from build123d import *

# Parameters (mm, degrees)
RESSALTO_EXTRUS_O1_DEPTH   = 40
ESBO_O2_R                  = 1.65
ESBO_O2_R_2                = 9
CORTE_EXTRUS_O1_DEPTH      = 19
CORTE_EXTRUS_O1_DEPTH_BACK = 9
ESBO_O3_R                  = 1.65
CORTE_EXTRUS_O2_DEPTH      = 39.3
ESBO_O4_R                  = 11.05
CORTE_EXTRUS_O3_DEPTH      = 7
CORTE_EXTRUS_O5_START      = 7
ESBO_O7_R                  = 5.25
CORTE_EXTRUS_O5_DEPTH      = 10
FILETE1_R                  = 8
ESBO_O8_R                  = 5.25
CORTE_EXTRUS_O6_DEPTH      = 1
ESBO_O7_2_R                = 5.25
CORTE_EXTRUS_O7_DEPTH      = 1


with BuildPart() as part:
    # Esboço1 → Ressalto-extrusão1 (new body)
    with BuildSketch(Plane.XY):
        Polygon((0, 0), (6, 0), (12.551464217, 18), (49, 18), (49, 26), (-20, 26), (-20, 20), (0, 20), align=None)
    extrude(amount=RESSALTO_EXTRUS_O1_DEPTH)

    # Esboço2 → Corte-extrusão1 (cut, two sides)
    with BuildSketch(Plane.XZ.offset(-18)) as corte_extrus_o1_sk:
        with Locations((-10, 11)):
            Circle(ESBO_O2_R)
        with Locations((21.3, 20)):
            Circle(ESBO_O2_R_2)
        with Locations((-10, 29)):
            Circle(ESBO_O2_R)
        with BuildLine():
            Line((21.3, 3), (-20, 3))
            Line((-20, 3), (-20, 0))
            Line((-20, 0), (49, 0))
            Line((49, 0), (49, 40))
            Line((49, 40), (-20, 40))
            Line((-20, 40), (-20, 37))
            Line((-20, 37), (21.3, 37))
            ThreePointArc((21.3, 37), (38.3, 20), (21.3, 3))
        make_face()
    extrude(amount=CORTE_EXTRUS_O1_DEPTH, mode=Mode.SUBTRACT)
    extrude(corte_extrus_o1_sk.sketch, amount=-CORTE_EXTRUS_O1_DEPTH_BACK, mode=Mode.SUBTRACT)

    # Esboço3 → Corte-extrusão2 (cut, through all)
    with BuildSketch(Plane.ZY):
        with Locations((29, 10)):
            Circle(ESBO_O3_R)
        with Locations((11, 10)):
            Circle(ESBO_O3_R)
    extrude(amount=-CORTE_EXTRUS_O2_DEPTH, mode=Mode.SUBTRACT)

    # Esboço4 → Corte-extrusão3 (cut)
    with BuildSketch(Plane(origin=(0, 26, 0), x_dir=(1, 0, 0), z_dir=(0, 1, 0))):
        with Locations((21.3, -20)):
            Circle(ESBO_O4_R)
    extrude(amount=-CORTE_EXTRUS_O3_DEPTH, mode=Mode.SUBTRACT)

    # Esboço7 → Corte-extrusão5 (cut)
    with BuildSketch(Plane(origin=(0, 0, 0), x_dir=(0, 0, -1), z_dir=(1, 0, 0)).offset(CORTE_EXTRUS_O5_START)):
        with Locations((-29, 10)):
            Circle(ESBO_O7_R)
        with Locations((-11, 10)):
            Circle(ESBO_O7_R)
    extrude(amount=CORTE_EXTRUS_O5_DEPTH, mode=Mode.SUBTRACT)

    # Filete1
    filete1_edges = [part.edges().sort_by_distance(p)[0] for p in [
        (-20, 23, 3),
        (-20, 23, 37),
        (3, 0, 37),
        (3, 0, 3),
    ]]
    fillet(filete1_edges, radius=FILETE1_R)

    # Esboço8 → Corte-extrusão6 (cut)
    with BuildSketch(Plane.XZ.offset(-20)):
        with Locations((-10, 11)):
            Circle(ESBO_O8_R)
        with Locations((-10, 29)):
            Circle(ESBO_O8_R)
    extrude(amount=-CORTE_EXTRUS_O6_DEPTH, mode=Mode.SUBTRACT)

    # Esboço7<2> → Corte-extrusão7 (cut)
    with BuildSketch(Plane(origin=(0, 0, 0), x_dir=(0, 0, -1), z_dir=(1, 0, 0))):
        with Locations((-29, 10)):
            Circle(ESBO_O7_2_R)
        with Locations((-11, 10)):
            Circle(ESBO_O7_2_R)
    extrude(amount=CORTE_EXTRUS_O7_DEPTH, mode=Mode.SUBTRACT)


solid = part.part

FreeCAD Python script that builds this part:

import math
import FreeCAD as App
import Part
import Sketcher

V = App.Vector
Q = App.Units.Quantity


def edges_at(feature, points):
    """Names of the edges that pass closest to the given points."""
    edges = feature.Shape.Edges
    near = lambda p: min(range(len(edges)), key=lambda i: edges[i].distToShape(Part.Vertex(*p))[0])
    return sorted({f"Edge{near(p) + 1}" for p in points})


def add_polygon(sketch, points):
    """Adds a closed chain of lines whose ends are joined by coincident constraints."""
    first, n = sketch.GeometryCount, len(points)
    for a, b in zip(points, points[1:] + points[:1]):
        sketch.addGeometry(Part.LineSegment(App.Vector(*a, 0), App.Vector(*b, 0)), False)
    for i in range(n):
        sketch.addConstraint(Sketcher.Constraint("Coincident", first + i, 2, first + (i + 1) % n, 1))

doc = App.newDocument("Part")
body = doc.addObject("PartDesign::Body", "Body")

# Sketch on XY plane
sketch1 = body.newObject("Sketcher::SketchObject", "Sketch")
sketch1.AttachmentSupport = (doc.getObject("XY_Plane"), [""])
sketch1.MapMode = "FlatFace"
add_polygon(sketch1, [(0, 0), (6, 0), (12.551464, 18), (49, 18), (49, 26), (-20, 26), (-20, 20), (0, 20)])  # lines 0-7
sketch1.addConstraint([
    Sketcher.Constraint("Horizontal", 0),
    Sketcher.Constraint("Horizontal", 2),
    Sketcher.Constraint("Vertical", 3),
    Sketcher.Constraint("Horizontal", 4),
    Sketcher.Constraint("Vertical", 5),
    Sketcher.Constraint("Horizontal", 6),
    Sketcher.Constraint("Vertical", 7),
    Sketcher.Constraint("Coincident", 7, 2, -1, 1),
    Sketcher.Constraint("Equal", 0, 5),
    Sketcher.Constraint("Equal", 6, 7),
    Sketcher.Constraint("DistanceX", 0, 1, 0, 2, Q("6 mm")),
    Sketcher.Constraint("DistanceX", 4, 2, 4, 1, Q("69 mm")),
    Sketcher.Constraint("DistanceX", 6, 1, 6, 2, Q("20 mm")),
    Sketcher.Constraint("DistanceY", 3, 1, 3, 2, Q("8 mm")),
    Sketcher.Constraint("Angle", 1, Q("70 deg")),
])
pad1 = body.newObject("PartDesign::Pad", "Pad")
pad1.Profile = sketch1
pad1.Length = 40

# Sketch on XZ plane
sketch2 = body.newObject("Sketcher::SketchObject", "Sketch001")
sketch2.AttachmentSupport = (doc.getObject("XZ_Plane"), [""])
sketch2.MapMode = "FlatFace"
sketch2.AttachmentOffset = App.Placement(V(0, 0, -18), App.Rotation())
sketch2.addGeometry([
    Part.Circle(V(-10, 11, 0), V(0, 0, 1), 1.65),  # 0
    Part.Circle(V(21.3, 20, 0), V(0, 0, 1), 9),  # 1
    Part.Circle(V(-10, 29, 0), V(0, 0, 1), 1.65),  # 2
    Part.LineSegment(V(21.3, 3, 0), V(-20, 3, 0)),  # 3
    Part.LineSegment(V(-20, 3, 0), V(-20, 0, 0)),  # 4
    Part.LineSegment(V(-20, 0, 0), V(49, 0, 0)),  # 5
    Part.LineSegment(V(49, 0, 0), V(49, 40, 0)),  # 6
    Part.LineSegment(V(49, 40, 0), V(-20, 40, 0)),  # 7
    Part.LineSegment(V(-20, 40, 0), V(-20, 37, 0)),  # 8
    Part.LineSegment(V(-20, 37, 0), V(21.3, 37, 0)),  # 9
    Part.ArcOfCircle(Part.Circle(V(21.3, 20, 0), V(0, 0, 1), 17), math.radians(-90), math.radians(90)),  # 10
], False)
sketch2.addConstraint([
    Sketcher.Constraint("Coincident", 3, 2, 4, 1),
    Sketcher.Constraint("Coincident", 4, 2, 5, 1),
    Sketcher.Constraint("Coincident", 5, 2, 6, 1),
    Sketcher.Constraint("Coincident", 6, 2, 7, 1),
    Sketcher.Constraint("Coincident", 7, 2, 8, 1),
    Sketcher.Constraint("Coincident", 8, 2, 9, 1),
    Sketcher.Constraint("Tangent", 9, 2, 10, 2),
    Sketcher.Constraint("Tangent", 10, 1, 3, 1),
    Sketcher.Constraint("Horizontal", 3),
    Sketcher.Constraint("Vertical", 4),
    Sketcher.Constraint("Horizontal", 5),
    Sketcher.Constraint("Vertical", 6),
    Sketcher.Constraint("Horizontal", 7),
    Sketcher.Constraint("Vertical", 8),
    Sketcher.Constraint("Horizontal", 9),
    Sketcher.Constraint("Coincident", 10, 3, 1, 3),
    Sketcher.Constraint("Equal", 0, 2),
    Sketcher.Constraint("PointOnObject", 4, 2, -1),
    Sketcher.Constraint("Vertical", 0, 3, 2, 3),
    Sketcher.Constraint("Vertical", 4, 2, 7, 2),
    Sketcher.Constraint("Equal", 4, 8),
    Sketcher.Constraint("Diameter", 1, Q("18 mm")),
    Sketcher.Constraint("Radius", 10, Q("17 mm")),
    Sketcher.Constraint("Diameter", 0, Q("3.3 mm")),
    Sketcher.Constraint("DistanceX", 5, 1, 5, 2, Q("69 mm")),
    Sketcher.Constraint("DistanceY", 4, 2, 4, 1, Q("3 mm")),
    Sketcher.Constraint("DistanceX", 3, 2, 3, 1, Q("41.3 mm")),
    Sketcher.Constraint("DistanceX", 0, 3, -1, 1, Q("10 mm")),
    Sketcher.Constraint("DistanceY", -1, 1, 0, 3, Q("11 mm")),
    Sketcher.Constraint("DistanceY", -1, 1, 2, 3, Q("29 mm")),
    Sketcher.Constraint("DistanceX", 3, 2, -1, 1, Q("20 mm")),
])
pocket1 = body.newObject("PartDesign::Pocket", "Pocket")
pocket1.Profile = sketch2
pocket1.Type = "ThroughAll"
pocket1.Midplane = True

# Sketch on YZ plane
sketch3 = body.newObject("Sketcher::SketchObject", "Sketch002")
sketch3.AttachmentSupport = (doc.getObject("YZ_Plane"), [""])
sketch3.MapMode = "FlatFace"
sketch3.addGeometry([
    Part.Circle(V(10, 29, 0), V(0, 0, 1), 1.65),
    Part.Circle(V(10, 11, 0), V(0, 0, 1), 1.65),
], False)
sketch3.addConstraint([
    Sketcher.Constraint("Equal", 0, 1),
    Sketcher.Constraint("Vertical", 0, 3, 1, 3),
    Sketcher.Constraint("Diameter", 0, Q("3.3 mm")),
    Sketcher.Constraint("DistanceX", -1, 1, 0, 3, Q("10 mm")),
    Sketcher.Constraint("DistanceY", -1, 1, 0, 3, Q("29 mm")),
    Sketcher.Constraint("DistanceY", -1, 1, 1, 3, Q("11 mm")),
])
pocket2 = body.newObject("PartDesign::Pocket", "Pocket001")
pocket2.Profile = sketch3
pocket2.Type = "ThroughAll"
pocket2.Reversed = True

# Sketch on XZ plane
sketch4 = body.newObject("Sketcher::SketchObject", "Sketch003")
sketch4.AttachmentSupport = (doc.getObject("XZ_Plane"), [""])
sketch4.MapMode = "FlatFace"
sketch4.AttachmentOffset = App.Placement(V(0, 0, -26), App.Rotation())
sketch4.addGeometry(Part.Circle(V(21.3, 20, 0), V(0, 0, 1), 11.05), False)
sketch4.addConstraint([
    Sketcher.Constraint("Diameter", 0, Q("22.1 mm")),
    Sketcher.Constraint("DistanceY", -1, 1, 0, 3, Q("20 mm")),
    Sketcher.Constraint("DistanceX", -1, 1, 0, 3, Q("21.3 mm")),
])
pocket3 = body.newObject("PartDesign::Pocket", "Pocket002")
pocket3.Profile = sketch4
pocket3.Length = 7
pocket3.Reversed = True

# Sketch on YZ plane
sketch5 = body.newObject("Sketcher::SketchObject", "Sketch004")
sketch5.AttachmentSupport = (doc.getObject("YZ_Plane"), [""])
sketch5.MapMode = "FlatFace"
sketch5.AttachmentOffset = App.Placement(V(0, 0, 7), App.Rotation())
sketch5.addGeometry([
    Part.Circle(V(10, 29, 0), V(0, 0, 1), 5.25),
    Part.Circle(V(10, 11, 0), V(0, 0, 1), 5.25),
], False)
sketch5.addConstraint([
    Sketcher.Constraint("Equal", 0, 1),
    Sketcher.Constraint("Vertical", 0, 3, 1, 3),
    Sketcher.Constraint("Diameter", 0, Q("10.5 mm")),
    Sketcher.Constraint("DistanceX", -1, 1, 0, 3, Q("10 mm")),
    Sketcher.Constraint("DistanceY", -1, 1, 0, 3, Q("29 mm")),
    Sketcher.Constraint("DistanceY", -1, 1, 1, 3, Q("11 mm")),
])
pocket4 = body.newObject("PartDesign::Pocket", "Pocket003")
pocket4.Profile = sketch5
pocket4.Length = 10
pocket4.Reversed = True
doc.recompute()

fillet = body.newObject("PartDesign::Fillet", "Fillet")
fillet.Base = (pocket4, edges_at(pocket4, [
    (-20, 23, 3),
    (-20, 23, 37),
    (3, 0, 37),
    (3, 0, 3),
]))
fillet.Radius = 8

# Sketch on XZ plane
sketch6 = body.newObject("Sketcher::SketchObject", "Sketch005")
sketch6.AttachmentSupport = (doc.getObject("XZ_Plane"), [""])
sketch6.MapMode = "FlatFace"
sketch6.AttachmentOffset = App.Placement(V(0, 0, -20), App.Rotation())
sketch6.addGeometry([
    Part.Circle(V(-10, 11, 0), V(0, 0, 1), 5.25),
    Part.Circle(V(-10, 29, 0), V(0, 0, 1), 5.25),
], False)
sketch6.addConstraint([
    Sketcher.Constraint("Equal", 0, 1),
    Sketcher.Constraint("Vertical", 0, 3, 1, 3),
    Sketcher.Constraint("Diameter", 0, Q("10.5 mm")),
    Sketcher.Constraint("DistanceX", 0, 3, -1, 1, Q("10 mm")),
    Sketcher.Constraint("DistanceY", -1, 1, 0, 3, Q("11 mm")),
    Sketcher.Constraint("DistanceY", -1, 1, 1, 3, Q("29 mm")),
])
pocket5 = body.newObject("PartDesign::Pocket", "Pocket004")
pocket5.Profile = sketch6
pocket5.Length = 1

# Sketch on YZ plane
sketch7 = body.newObject("Sketcher::SketchObject", "Sketch006")
sketch7.AttachmentSupport = (doc.getObject("YZ_Plane"), [""])
sketch7.MapMode = "FlatFace"
sketch7.addGeometry([
    Part.Circle(V(10, 29, 0), V(0, 0, 1), 5.25),
    Part.Circle(V(10, 11, 0), V(0, 0, 1), 5.25),
], False)
sketch7.addConstraint([
    Sketcher.Constraint("Equal", 0, 1),
    Sketcher.Constraint("Vertical", 0, 3, 1, 3),
    Sketcher.Constraint("Diameter", 0, Q("10.5 mm")),
    Sketcher.Constraint("DistanceX", -1, 1, 0, 3, Q("10 mm")),
    Sketcher.Constraint("DistanceY", -1, 1, 0, 3, Q("29 mm")),
    Sketcher.Constraint("DistanceY", -1, 1, 1, 3, Q("11 mm")),
])
pocket6 = body.newObject("PartDesign::Pocket", "Pocket005")
pocket6.Profile = sketch7
pocket6.Length = 1
pocket6.Reversed = True

doc.recompute()
